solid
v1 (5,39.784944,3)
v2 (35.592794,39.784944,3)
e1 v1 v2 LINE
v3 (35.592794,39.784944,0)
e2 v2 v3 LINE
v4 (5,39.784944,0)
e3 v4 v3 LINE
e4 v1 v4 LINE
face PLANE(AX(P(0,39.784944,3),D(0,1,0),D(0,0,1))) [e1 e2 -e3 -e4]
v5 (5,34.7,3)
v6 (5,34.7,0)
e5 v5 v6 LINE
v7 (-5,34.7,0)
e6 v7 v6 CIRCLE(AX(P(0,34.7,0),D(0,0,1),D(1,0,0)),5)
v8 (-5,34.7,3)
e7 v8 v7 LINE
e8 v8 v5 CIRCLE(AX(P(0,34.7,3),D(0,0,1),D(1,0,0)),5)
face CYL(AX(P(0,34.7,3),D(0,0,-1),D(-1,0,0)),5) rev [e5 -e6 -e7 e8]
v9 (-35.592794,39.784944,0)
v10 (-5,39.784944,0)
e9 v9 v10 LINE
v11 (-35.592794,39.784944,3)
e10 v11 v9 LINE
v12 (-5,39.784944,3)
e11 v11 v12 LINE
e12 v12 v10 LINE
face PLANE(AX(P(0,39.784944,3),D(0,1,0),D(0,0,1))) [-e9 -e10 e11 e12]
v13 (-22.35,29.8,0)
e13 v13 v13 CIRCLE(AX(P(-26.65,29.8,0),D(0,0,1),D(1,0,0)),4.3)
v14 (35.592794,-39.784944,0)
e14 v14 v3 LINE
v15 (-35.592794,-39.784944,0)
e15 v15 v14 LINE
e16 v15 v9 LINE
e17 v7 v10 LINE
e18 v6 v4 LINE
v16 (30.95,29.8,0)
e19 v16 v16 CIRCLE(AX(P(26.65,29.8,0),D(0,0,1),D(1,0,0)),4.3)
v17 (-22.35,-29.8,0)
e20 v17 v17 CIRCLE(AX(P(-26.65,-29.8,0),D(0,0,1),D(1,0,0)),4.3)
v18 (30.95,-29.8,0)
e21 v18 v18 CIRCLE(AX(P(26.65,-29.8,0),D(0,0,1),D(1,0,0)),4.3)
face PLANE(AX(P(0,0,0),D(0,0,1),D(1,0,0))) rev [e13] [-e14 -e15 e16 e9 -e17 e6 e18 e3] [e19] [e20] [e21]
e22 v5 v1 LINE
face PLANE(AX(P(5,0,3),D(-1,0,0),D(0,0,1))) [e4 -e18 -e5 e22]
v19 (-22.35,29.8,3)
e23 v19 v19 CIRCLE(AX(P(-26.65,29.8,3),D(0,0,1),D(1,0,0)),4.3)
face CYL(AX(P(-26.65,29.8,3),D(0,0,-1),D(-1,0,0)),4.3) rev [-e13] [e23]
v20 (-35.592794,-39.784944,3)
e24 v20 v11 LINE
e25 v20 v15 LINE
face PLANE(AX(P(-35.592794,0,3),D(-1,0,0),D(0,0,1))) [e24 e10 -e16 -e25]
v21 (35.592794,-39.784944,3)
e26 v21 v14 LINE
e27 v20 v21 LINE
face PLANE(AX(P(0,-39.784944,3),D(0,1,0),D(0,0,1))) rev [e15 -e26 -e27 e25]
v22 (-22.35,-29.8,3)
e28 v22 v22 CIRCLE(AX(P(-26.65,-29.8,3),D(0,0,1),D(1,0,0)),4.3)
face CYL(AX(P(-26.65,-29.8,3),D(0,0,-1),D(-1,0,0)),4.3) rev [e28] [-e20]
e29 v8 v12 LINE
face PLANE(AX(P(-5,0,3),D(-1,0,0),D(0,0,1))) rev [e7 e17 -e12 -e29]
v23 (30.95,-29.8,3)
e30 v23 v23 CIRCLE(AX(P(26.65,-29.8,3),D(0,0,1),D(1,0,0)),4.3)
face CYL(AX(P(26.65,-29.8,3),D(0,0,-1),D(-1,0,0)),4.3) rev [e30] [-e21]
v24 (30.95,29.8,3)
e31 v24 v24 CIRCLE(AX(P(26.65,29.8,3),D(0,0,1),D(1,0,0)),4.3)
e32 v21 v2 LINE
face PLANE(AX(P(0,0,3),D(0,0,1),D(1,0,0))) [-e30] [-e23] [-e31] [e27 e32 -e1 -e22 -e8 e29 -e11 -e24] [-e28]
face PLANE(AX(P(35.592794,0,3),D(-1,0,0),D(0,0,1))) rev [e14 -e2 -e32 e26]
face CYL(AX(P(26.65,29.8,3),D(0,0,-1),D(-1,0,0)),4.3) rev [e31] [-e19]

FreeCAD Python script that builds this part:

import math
import FreeCAD as App
import Part
import Sketcher

V = App.Vector

doc = App.newDocument("Part")
body = doc.addObject("PartDesign::Body", "Body")

sketch1 = body.newObject("Sketcher::SketchObject", "Sketch")
sketch1.AttachmentSupport = (doc.getObject("XY_Plane"), [""])
sketch1.MapMode = "FlatFace"
sketch1.addGeometry(Part.LineSegment(V(-35.6, 39.8, 0), V(-35.6, -39.8, 0)), False)
sketch1.addGeometry(Part.LineSegment(V(-35.6, -39.8, 0), V(35.6, -39.8, 0)), False)
sketch1.addGeometry(Part.LineSegment(V(35.6, -39.8, 0), V(35.6, 39.8, 0)), False)
sketch1.addGeometry(Part.LineSegment(V(35.6, 39.8, 0), V(5, 39.8, 0)), False)
sketch1.addGeometry(Part.LineSegment(V(5, 39.8, 0), V(5, 34.7, 0)), False)
sketch1.addGeometry(Part.ArcOfCircle(Part.Circle(V(0, 34.7, 0), V(0, 0, 1), 5), math.radians(180), math.radians(360)), False)
sketch1.addGeometry(Part.LineSegment(V(-5, 34.7, 0), V(-5, 39.8, 0)), False)
sketch1.addGeometry(Part.LineSegment(V(-5, 39.8, 0), V(-35.6, 39.8, 0)), False)
sketch1.addGeometry(Part.Circle(V(-26.6, -29.8, 0), V(0, 0, 1), 4.3), False)
sketch1.addGeometry(Part.Circle(V(26.6, -29.8, 0), V(0, 0, 1), 4.3), False)
sketch1.addGeometry(Part.Circle(V(-26.6, 29.8, 0), V(0, 0, 1), 4.3), False)
sketch1.addGeometry(Part.Circle(V(26.6, 29.8, 0), V(0, 0, 1), 4.3), False)
sketch1.addConstraint(Sketcher.Constraint("Coincident", 0, 2, 1, 1))
sketch1.addConstraint(Sketcher.Constraint("Coincident", 1, 2, 2, 1))
sketch1.addConstraint(Sketcher.Constraint("Coincident", 2, 2, 3, 1))
sketch1.addConstraint(Sketcher.Constraint("Coincident", 3, 2, 4, 1))
sketch1.addConstraint(Sketcher.Constraint("Tangent", 4, 2, 5, 2))
sketch1.addConstraint(Sketcher.Constraint("Tangent", 5, 1, 6, 1))
sketch1.addConstraint(Sketcher.Constraint("Coincident", 6, 2, 7, 1))
sketch1.addConstraint(Sketcher.Constraint("Coincident", 7, 2, 0, 1))
sketch1.addConstraint(Sketcher.Constraint("Vertical", 0))
sketch1.addConstraint(Sketcher.Constraint("Horizontal", 1))
sketch1.addConstraint(Sketcher.Constraint("Vertical", 2))
sketch1.addConstraint(Sketcher.Constraint("Horizontal", 3))
sketch1.addConstraint(Sketcher.Constraint("Vertical", 4))
sketch1.addConstraint(Sketcher.Constraint("Vertical", 6))
sketch1.addConstraint(Sketcher.Constraint("Horizontal", 7))
sketch1.addConstraint(Sketcher.Constraint("Equal", 8, 9))
sketch1.addConstraint(Sketcher.Constraint("Equal", 9, 10))
sketch1.addConstraint(Sketcher.Constraint("Equal", 10, 11))
sketch1.addConstraint(Sketcher.Constraint("Symmetric", 9, 3, 10, 3, -1, 1))
sketch1.addConstraint(Sketcher.Constraint("Symmetric", 8, 3, 11, 3, -1, 1))
sketch1.addConstraint(Sketcher.Constraint("Symmetric", 0, 2, 2, 2, -1, 1))
sketch1.addConstraint(Sketcher.Constraint("Symmetric", 8, 3, 9, 3, -2))
sketch1.addConstraint(Sketcher.Constraint("Symmetric", 3, 2, 6, 2, -2))
sketch1.addConstraint(Sketcher.Constraint("Radius", 5, 5.0))
sketch1.addConstraint(Sketcher.Constraint("Diameter", 8, 8.6))
sketch1.addConstraint(Sketcher.Constraint("DistanceY", -1, 1, 5, 3, 34.7))
sketch1.addConstraint(Sketcher.Constraint("DistanceY", 8, 3, -1, 1, 29.8))
sketch1.addConstraint(Sketcher.Constraint("DistanceX", 8, 3, 9, 3, 53.3))
sketch1.addConstraint(Sketcher.Constraint("DistanceX", 1, 1, 1, 2, 71.185588))
sketch1.addConstraint(Sketcher.Constraint("DistanceY", 0, 2, 0, 1, 79.569888))
pad1 = body.newObject("PartDesign::Pad", "Pad")
pad1.Profile = sketch1
pad1.Length = 3

doc.recompute()
